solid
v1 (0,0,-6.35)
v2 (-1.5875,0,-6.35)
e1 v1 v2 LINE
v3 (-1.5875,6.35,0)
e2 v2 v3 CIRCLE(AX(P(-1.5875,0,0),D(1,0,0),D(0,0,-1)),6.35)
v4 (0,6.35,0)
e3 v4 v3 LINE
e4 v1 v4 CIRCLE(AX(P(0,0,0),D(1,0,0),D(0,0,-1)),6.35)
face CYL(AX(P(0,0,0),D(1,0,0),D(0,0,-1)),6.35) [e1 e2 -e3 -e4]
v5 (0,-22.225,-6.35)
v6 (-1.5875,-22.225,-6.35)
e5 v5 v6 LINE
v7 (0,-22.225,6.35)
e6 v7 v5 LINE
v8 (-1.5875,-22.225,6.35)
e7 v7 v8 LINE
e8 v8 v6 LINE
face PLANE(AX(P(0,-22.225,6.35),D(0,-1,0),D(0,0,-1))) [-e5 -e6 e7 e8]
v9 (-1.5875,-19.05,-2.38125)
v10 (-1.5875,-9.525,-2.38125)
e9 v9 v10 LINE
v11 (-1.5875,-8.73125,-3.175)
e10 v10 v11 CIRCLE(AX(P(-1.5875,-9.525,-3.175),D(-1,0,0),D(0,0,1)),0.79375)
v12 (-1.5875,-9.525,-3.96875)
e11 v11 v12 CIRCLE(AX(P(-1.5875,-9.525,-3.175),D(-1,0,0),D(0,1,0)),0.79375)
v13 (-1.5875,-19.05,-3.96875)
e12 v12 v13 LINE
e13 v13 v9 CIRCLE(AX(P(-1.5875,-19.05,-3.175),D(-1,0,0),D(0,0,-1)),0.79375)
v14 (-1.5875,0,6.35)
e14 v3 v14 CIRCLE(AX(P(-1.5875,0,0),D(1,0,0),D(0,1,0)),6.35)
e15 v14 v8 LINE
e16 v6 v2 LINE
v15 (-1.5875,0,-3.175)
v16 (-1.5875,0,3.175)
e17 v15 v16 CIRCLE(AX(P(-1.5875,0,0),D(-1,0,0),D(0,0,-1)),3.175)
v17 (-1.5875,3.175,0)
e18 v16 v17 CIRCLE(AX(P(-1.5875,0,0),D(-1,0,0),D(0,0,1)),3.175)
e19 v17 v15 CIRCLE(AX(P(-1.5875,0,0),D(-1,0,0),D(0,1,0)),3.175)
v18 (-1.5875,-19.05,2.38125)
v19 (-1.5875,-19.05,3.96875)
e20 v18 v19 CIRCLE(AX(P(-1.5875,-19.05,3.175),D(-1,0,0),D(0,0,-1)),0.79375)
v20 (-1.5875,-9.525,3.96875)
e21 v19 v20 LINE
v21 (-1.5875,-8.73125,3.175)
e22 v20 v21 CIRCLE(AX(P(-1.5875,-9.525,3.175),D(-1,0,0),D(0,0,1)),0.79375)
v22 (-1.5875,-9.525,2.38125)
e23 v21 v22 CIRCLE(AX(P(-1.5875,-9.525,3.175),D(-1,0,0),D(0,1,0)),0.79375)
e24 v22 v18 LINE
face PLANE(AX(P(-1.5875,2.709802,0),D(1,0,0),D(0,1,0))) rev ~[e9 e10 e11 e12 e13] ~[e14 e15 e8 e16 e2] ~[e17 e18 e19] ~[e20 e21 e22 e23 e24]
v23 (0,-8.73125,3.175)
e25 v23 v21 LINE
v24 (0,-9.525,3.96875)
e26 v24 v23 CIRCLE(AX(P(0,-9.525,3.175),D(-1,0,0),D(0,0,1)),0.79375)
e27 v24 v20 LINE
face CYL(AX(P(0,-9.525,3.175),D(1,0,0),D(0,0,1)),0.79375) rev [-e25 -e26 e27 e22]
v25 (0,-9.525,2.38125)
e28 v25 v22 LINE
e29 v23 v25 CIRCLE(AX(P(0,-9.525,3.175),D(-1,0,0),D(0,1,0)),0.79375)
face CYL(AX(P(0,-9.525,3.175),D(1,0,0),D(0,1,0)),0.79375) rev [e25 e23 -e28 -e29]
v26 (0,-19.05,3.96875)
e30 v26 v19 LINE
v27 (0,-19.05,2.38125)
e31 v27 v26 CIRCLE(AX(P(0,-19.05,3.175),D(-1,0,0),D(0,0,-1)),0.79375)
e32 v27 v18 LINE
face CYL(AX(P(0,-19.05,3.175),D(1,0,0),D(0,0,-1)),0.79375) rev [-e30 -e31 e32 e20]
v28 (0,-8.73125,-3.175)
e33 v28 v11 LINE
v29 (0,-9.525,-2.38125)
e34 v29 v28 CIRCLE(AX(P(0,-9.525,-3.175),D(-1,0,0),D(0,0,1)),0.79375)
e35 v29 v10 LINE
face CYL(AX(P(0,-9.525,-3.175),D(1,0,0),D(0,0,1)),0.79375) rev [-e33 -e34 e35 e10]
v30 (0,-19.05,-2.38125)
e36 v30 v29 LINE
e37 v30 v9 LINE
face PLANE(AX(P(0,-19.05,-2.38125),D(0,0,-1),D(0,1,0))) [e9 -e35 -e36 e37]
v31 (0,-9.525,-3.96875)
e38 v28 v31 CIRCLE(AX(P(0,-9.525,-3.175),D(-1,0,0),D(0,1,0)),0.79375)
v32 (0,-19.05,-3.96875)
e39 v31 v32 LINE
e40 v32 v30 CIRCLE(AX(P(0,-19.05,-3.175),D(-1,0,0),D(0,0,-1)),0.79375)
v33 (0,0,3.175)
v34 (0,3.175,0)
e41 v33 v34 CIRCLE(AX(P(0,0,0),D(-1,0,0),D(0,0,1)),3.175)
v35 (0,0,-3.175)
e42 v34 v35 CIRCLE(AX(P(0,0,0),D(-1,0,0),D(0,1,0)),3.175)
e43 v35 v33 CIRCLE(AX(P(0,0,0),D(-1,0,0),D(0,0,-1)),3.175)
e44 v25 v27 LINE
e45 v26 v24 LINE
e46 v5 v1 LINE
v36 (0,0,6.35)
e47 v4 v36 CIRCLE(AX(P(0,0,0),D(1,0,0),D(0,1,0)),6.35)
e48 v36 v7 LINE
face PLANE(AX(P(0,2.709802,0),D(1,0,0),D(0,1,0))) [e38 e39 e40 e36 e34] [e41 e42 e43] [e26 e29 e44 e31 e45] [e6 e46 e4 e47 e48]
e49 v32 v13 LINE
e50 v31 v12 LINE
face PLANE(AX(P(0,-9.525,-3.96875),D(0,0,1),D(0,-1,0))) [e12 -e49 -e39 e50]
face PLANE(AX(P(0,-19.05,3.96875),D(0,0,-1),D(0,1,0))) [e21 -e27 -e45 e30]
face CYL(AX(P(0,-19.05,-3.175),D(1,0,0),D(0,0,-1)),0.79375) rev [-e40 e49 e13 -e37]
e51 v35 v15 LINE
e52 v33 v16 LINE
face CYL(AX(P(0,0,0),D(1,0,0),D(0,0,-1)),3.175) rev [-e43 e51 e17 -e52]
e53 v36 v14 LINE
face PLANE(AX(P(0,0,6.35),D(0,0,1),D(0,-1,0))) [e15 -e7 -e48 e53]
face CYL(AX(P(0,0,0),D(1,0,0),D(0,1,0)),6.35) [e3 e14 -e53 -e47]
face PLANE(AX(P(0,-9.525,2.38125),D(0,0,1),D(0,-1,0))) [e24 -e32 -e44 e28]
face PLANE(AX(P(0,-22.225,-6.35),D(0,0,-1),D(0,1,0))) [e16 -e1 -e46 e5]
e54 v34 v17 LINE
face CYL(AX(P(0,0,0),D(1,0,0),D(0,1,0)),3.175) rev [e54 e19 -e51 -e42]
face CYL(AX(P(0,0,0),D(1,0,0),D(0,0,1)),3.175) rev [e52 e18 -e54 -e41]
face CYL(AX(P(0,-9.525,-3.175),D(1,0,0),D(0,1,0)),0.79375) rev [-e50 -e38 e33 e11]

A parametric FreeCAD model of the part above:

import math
import FreeCAD as App
import Part
import Sketcher
from FreeCAD import Vector
Q = App.Units.Quantity

doc = App.newDocument("Part")
params = doc.addObject("Spreadsheet::Sheet", "Params")
for row, (alias, value) in enumerate([
    ("sketch1_radius", "0.25 in"),
    ("sketch1_radius2", "0.03125 in"),
    ("sketch1_radius3", "0.125 in"),
    ("sketch1_width", "0.875 in"),
    ("sketch1_width2", "0.375 in"),
    ("pad1_length", "0.0625 in"),
], start=1):
    params.set(f"A{row}", alias)
    params.set(f"B{row}", "=" + value)
    params.setAlias(f"B{row}", alias)

body = doc.addObject("PartDesign::Body", "Body")

# Sketch on YZ plane
sketch1 = body.newObject("Sketcher::SketchObject", "Sketch")
sketch1.AttachmentSupport = (doc.getObject("YZ_Plane"), [""])
sketch1.MapMode = "FlatFace"
sketch1.addGeometry([
    Part.ArcOfCircle(Part.Circle(Vector(0, 0, 0), Vector(0, 0, 1), 6.3), math.radians(-90), math.radians(0)),  # 0
    Part.ArcOfCircle(Part.Circle(Vector(0, 0, 0), Vector(0, 0, 1), 6.3), math.radians(0), math.radians(90)),  # 1
    Part.LineSegment(Vector(0, 6.3, 0), Vector(-22.2, 6.3, 0)),  # 2
    Part.LineSegment(Vector(-22.2, 6.3, 0), Vector(-22.2, -6.3, 0)),  # 3
    Part.LineSegment(Vector(-22.2, -6.3, 0), Vector(0, -6.3, 0)),  # 4
    Part.LineSegment(Vector(-19.1, -2.4, 0), Vector(-9.5, -2.4, 0)),  # 5
    Part.ArcOfCircle(Part.Circle(Vector(-9.5, -3.2, 0), Vector(0, 0, 1), 0.8), math.radians(0), math.radians(90)),  # 6
    Part.ArcOfCircle(Part.Circle(Vector(-9.5, -3.2, 0), Vector(0, 0, 1), 0.8), math.radians(-90), math.radians(0)),  # 7
    Part.LineSegment(Vector(-9.5, -4, 0), Vector(-19.1, -4, 0)),  # 8
    Part.ArcOfCircle(Part.Circle(Vector(-19.1, -3.2, 0), Vector(0, 0, 1), 0.8), math.radians(90), math.radians(270)),  # 9
    Part.LineSegment(Vector(-9.5, 2.4, 0), Vector(-19.1, 2.4, 0)),  # 10
    Part.ArcOfCircle(Part.Circle(Vector(-19.1, 3.2, 0), Vector(0, 0, 1), 0.8), math.radians(90), math.radians(270)),  # 11
    Part.LineSegment(Vector(-19.1, 4, 0), Vector(-9.5, 4, 0)),  # 12
    Part.ArcOfCircle(Part.Circle(Vector(-9.5, 3.2, 0), Vector(0, 0, 1), 0.8), math.radians(0), math.radians(90)),  # 13
    Part.ArcOfCircle(Part.Circle(Vector(-9.5, 3.2, 0), Vector(0, 0, 1), 0.8), math.radians(-90), math.radians(0)),  # 14
    Part.ArcOfCircle(Part.Circle(Vector(0, 0, 0), Vector(0, 0, 1), 3.2), math.radians(0), math.radians(90)),  # 15
    Part.ArcOfCircle(Part.Circle(Vector(0, 0, 0), Vector(0, 0, 1), 3.2), math.radians(-90), math.radians(0)),  # 16
    Part.ArcOfCircle(Part.Circle(Vector(0, 0, 0), Vector(0, 0, 1), 3.2), math.radians(90), math.radians(270)),  # 17
], False)
sketch1.addConstraint([
    Sketcher.Constraint("Tangent", 0, 2, 1, 1),
    Sketcher.Constraint("Tangent", 1, 2, 2, 1),
    Sketcher.Constraint("Coincident", 2, 2, 3, 1),
    Sketcher.Constraint("Coincident", 3, 2, 4, 1),
    Sketcher.Constraint("Tangent", 4, 2, 0, 1),
    Sketcher.Constraint("Tangent", 5, 2, 6, 2),
    Sketcher.Constraint("Tangent", 6, 1, 7, 2),
    Sketcher.Constraint("Tangent", 7, 1, 8, 1),
    Sketcher.Constraint("Tangent", 8, 2, 9, 2),
    Sketcher.Constraint("Tangent", 9, 1, 5, 1),
    Sketcher.Constraint("Tangent", 10, 2, 11, 2),
    Sketcher.Constraint("Tangent", 11, 1, 12, 1),
    Sketcher.Constraint("Tangent", 12, 2, 13, 2),
    Sketcher.Constraint("Tangent", 13, 1, 14, 2),
    Sketcher.Constraint("Tangent", 14, 1, 10, 1),
    Sketcher.Constraint("Tangent", 15, 1, 16, 2),
    Sketcher.Constraint("Tangent", 16, 1, 17, 2),
    Sketcher.Constraint("Tangent", 17, 1, 15, 2),
    Sketcher.Constraint("Horizontal", 2),
    Sketcher.Constraint("Vertical", 3),
    Sketcher.Constraint("Horizontal", 4),
    Sketcher.Constraint("Horizontal", 5),
    Sketcher.Constraint("Horizontal", 8),
    Sketcher.Constraint("Horizontal", 10),
    Sketcher.Constraint("Horizontal", 12),
    Sketcher.Constraint("Coincident", 0, 3, -1, 1),
    Sketcher.Constraint("Coincident", 15, 3, -1, 1),
    Sketcher.Constraint("Equal", 0, 1),
    Sketcher.Constraint("Equal", 6, 7),
    Sketcher.Constraint("Equal", 9, 11),
    Sketcher.Constraint("Equal", 11, 13),
    Sketcher.Constraint("Symmetric", 9, 3, 11, 3, -1),
    Sketcher.Constraint("Symmetric", 6, 1, 13, 1, -1),
    Sketcher.Constraint("PointOnObject", 0, 2, -1),
    Sketcher.Constraint("PointOnObject", 15, 1, -1),
    Sketcher.Constraint("PointOnObject", 16, 1, -2),
    Sketcher.Constraint("PointOnObject", 17, 1, -2),
    Sketcher.Constraint("Horizontal", 9, 3, 6, 1),
    Sketcher.Constraint("Horizontal", 6, 1, 16, 1),
    Sketcher.Constraint("Radius", 0, Q("0.25 in")),
    Sketcher.Constraint("Radius", 6, Q("0.03125 in")),
    Sketcher.Constraint("Radius", 15, Q("0.125 in")),
    Sketcher.Constraint("DistanceX", 2, 2, 13, 3, Q("0.5 in")),
    Sketcher.Constraint("DistanceX", 2, 2, 2, 1, Q("0.875 in")),
    Sketcher.Constraint("DistanceX", 5, 1, 5, 2, Q("0.375 in")),
])
sketch1.setExpression("Constraints[39]", "Params.sketch1_radius")
sketch1.setExpression("Constraints[40]", "Params.sketch1_radius2")
sketch1.setExpression("Constraints[41]", "Params.sketch1_radius3")
sketch1.setExpression("Constraints[43]", "Params.sketch1_width")
sketch1.setExpression("Constraints[44]", "Params.sketch1_width2")
pad1 = body.newObject("PartDesign::Pad", "Pad")
pad1.Profile = sketch1
pad1.setExpression("Length", "Params.pad1_length")
pad1.Reversed = True

doc.recompute()
